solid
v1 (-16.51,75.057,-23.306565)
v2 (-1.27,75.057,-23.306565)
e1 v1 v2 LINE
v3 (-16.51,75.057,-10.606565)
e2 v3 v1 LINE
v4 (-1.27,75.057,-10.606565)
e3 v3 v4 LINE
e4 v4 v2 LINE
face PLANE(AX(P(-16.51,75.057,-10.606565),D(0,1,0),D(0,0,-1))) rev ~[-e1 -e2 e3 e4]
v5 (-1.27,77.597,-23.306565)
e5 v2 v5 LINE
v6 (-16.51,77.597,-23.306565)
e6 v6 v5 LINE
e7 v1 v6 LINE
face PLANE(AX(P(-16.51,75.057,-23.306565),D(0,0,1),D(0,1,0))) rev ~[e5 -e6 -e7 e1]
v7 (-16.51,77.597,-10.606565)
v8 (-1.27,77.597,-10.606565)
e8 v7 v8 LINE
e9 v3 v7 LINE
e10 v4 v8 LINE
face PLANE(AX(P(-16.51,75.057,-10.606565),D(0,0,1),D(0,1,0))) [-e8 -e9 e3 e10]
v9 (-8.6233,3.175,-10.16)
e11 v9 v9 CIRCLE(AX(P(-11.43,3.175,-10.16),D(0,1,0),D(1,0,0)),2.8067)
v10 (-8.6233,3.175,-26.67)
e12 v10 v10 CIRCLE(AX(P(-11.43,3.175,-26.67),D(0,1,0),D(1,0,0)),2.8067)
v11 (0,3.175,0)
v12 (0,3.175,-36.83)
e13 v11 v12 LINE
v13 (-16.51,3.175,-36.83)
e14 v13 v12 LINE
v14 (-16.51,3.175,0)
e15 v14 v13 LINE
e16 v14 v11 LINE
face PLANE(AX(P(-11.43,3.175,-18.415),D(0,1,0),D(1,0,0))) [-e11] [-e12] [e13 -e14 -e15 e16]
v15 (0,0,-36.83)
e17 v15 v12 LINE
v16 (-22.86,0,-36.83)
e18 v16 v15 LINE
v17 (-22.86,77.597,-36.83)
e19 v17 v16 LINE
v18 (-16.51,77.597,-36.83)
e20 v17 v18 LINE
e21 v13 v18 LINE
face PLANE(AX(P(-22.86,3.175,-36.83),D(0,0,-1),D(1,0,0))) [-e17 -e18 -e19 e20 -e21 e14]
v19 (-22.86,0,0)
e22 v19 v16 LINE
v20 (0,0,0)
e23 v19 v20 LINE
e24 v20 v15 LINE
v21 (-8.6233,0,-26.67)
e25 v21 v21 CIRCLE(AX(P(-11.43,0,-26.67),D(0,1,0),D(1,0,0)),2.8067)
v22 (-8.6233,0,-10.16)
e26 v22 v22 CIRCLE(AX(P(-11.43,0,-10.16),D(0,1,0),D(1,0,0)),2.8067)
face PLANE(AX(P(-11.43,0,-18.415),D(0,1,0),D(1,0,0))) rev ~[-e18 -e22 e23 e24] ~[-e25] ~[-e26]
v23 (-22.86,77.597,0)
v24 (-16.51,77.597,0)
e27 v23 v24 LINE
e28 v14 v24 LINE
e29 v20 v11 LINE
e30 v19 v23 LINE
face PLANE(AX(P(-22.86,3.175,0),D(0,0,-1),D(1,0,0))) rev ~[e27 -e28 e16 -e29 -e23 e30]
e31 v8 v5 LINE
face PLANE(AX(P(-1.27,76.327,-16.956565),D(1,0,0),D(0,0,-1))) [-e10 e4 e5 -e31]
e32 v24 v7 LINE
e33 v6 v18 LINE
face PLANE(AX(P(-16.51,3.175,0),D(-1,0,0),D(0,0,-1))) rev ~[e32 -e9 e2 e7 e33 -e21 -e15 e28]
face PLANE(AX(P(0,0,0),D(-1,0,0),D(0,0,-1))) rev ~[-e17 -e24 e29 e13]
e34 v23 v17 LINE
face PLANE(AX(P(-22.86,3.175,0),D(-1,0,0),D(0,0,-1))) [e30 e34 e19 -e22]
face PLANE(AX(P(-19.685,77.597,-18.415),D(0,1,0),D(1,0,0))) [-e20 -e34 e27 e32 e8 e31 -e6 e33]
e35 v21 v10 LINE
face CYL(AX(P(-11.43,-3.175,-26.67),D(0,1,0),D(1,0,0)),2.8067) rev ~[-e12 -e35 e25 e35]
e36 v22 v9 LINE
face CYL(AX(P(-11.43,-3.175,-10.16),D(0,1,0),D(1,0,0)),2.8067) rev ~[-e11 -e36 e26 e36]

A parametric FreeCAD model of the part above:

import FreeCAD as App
import Part
import Sketcher
Q = App.Units.Quantity


def add_polygon(sketch, points):
    """Adds a closed chain of lines whose ends are joined by coincident constraints."""
    first, n = sketch.GeometryCount, len(points)
    for a, b in zip(points, points[1:] + points[:1]):
        sketch.addGeometry(Part.LineSegment(App.Vector(*a, 0), App.Vector(*b, 0)), False)
    for i in range(n):
        sketch.addConstraint(Sketcher.Constraint("Coincident", first + i, 2, first + (i + 1) % n, 1))

doc = App.newDocument("Part")
body = doc.addObject("PartDesign::Body", "Body")

# Sketch on XZ plane
sketch1 = body.newObject("Sketcher::SketchObject", "Sketch")
sketch1.AttachmentSupport = (doc.getObject("XZ_Plane"), [""])
sketch1.MapMode = "FlatFace"
add_polygon(sketch1, [(-23, -37), (-23, 0), (0, 0), (0, -37)])  # lines 0-3
sketch1.addConstraint([
    Sketcher.Constraint("Vertical", 0),
    Sketcher.Constraint("Horizontal", 1),
    Sketcher.Constraint("Vertical", 2),
    Sketcher.Constraint("Horizontal", 3),
    Sketcher.Constraint("Coincident", 1, 2, -1, 1),
    Sketcher.Constraint("DistanceX", 1, 1, 1, 2, Q("0.9 in")),
    Sketcher.Constraint("DistanceY", 0, 1, 0, 2, Q("1.45 in")),
])
pad1 = body.newObject("PartDesign::Pad", "Pad")
pad1.Profile = sketch1
pad1.Length = Q("0.125 in")
pad1.Reversed = True

# Sketch on XZ plane
sketch2 = body.newObject("Sketcher::SketchObject", "Sketch001")
sketch2.AttachmentSupport = (doc.getObject("XZ_Plane"), [""])
sketch2.MapMode = "FlatFace"
sketch2.AttachmentOffset = App.Placement(App.Vector(0, 0, -0.125 * 25.4), App.Rotation())
add_polygon(sketch2, [(-23, -37), (-23, 0), (-17, 0), (-17, -37)])  # lines 0-3
sketch2.addConstraint([
    Sketcher.Constraint("Vertical", 0),
    Sketcher.Constraint("Horizontal", 1),
    Sketcher.Constraint("Vertical", 2),
    Sketcher.Constraint("Horizontal", 3),
    Sketcher.Constraint("PointOnObject", 0, 2, -1),
    Sketcher.Constraint("DistanceX", 1, 1, 1, 2, Q("0.25 in")),
    Sketcher.Constraint("DistanceY", 0, 1, 0, 2, Q("1.45 in")),
    Sketcher.Constraint("DistanceX", 0, 2, -1, 1, Q("0.9 in")),
])
pad2 = body.newObject("PartDesign::Pad", "Pad001")
pad2.Profile = sketch2
pad2.Length = Q("2.93 in")
pad2.Reversed = True

# Sketch on YZ plane
sketch3 = body.newObject("Sketcher::SketchObject", "Sketch002")
sketch3.AttachmentSupport = (doc.getObject("YZ_Plane"), [""])
sketch3.MapMode = "FlatFace"
sketch3.AttachmentOffset = App.Placement(App.Vector(0, 0, -0.65 * 25.4), App.Rotation())
add_polygon(sketch3, [(77.6, -10.6), (75.1, -10.6), (75.1, -23.3), (77.6, -23.3)])  # lines 0-3
sketch3.addConstraint([
    Sketcher.Constraint("Horizontal", 0),
    Sketcher.Constraint("Vertical", 1),
    Sketcher.Constraint("Horizontal", 2),
    Sketcher.Constraint("Vertical", 3),
    Sketcher.Constraint("DistanceX", 0, 2, 0, 1, Q("0.1 in")),
    Sketcher.Constraint("DistanceY", 1, 2, 1, 1, Q("0.5 in")),
    Sketcher.Constraint("DistanceX", -1, 1, 0, 2, Q("2.955 in")),
    Sketcher.Constraint("DistanceY", 0, 2, -1, 1, 10.606565),
])
pad3 = body.newObject("PartDesign::Pad", "Pad002")
pad3.Profile = sketch3
pad3.Length = Q("0.6 in")

# Sketch on XZ plane
sketch4 = body.newObject("Sketcher::SketchObject", "Sketch003")
sketch4.AttachmentSupport = (doc.getObject("XZ_Plane"), [""])
sketch4.MapMode = "FlatFace"
sketch4.addGeometry([
    Part.Circle(App.Vector(-11.4, -10.2, 0), App.Vector(0, 0, 1), 2.8),
    Part.Circle(App.Vector(-11.4, -26.7, 0), App.Vector(0, 0, 1), 2.8),
], False)
sketch4.addConstraint([
    Sketcher.Constraint("Equal", 0, 1),
    Sketcher.Constraint("Vertical", 0, 3, 1, 3),
    Sketcher.Constraint("Diameter", 0, Q("0.221 in")),
    Sketcher.Constraint("DistanceY", 0, 3, -1, 1, Q("0.4 in")),
    Sketcher.Constraint("DistanceX", 0, 3, -1, 1, Q("0.45 in")),
    Sketcher.Constraint("DistanceY", 1, 3, -1, 1, Q("1.05 in")),
])
doc.recompute()
hole = body.newObject("PartDesign::Hole", "Hole")
hole.Profile = sketch4
hole.ThreadType = "None"
hole.Diameter = Q("0.221 in")
hole.DepthType = "Dimension"
hole.Depth = Q("0.125 in")
hole.DrillPoint = "Flat"

doc.recompute()
